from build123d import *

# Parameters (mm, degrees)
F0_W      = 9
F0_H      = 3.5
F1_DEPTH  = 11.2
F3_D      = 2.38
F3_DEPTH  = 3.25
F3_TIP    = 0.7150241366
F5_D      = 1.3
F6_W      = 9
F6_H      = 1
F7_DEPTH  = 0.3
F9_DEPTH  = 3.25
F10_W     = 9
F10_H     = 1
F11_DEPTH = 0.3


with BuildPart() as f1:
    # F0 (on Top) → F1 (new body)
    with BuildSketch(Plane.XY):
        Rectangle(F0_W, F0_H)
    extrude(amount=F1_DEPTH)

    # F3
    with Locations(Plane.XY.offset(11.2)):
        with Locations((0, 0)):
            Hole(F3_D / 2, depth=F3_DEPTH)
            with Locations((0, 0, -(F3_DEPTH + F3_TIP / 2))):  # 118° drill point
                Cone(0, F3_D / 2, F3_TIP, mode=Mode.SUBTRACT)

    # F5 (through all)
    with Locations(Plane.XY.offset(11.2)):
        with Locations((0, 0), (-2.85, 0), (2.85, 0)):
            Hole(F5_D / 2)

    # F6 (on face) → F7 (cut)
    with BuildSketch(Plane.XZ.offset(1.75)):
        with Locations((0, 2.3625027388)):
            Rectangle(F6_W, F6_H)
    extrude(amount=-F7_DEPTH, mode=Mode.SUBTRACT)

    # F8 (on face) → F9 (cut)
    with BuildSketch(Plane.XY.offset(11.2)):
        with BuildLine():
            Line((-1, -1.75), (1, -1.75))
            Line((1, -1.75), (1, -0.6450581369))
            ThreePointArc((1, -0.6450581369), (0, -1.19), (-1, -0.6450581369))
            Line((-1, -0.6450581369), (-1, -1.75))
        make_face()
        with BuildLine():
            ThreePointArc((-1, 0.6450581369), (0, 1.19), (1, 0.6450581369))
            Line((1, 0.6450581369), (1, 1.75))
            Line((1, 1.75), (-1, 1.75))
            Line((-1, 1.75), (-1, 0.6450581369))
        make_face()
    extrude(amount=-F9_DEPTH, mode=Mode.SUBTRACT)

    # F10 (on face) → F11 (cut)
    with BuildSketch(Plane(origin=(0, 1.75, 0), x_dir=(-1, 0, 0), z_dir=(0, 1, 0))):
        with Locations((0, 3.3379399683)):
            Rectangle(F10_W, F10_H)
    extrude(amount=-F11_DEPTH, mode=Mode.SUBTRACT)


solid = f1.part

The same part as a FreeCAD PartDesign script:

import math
import FreeCAD as App
import Part
import Sketcher

V = App.Vector
Q = App.Units.Quantity

doc = App.newDocument("Part")
body = doc.addObject("PartDesign::Body", "Body")

# Sketch on XY plane
sketch1 = doc.addObject("Sketcher::SketchObject", "Sketch")
body.addObject(sketch1)
sketch1.AttachmentSupport = (doc.XY_Plane, [""])
sketch1.MapMode = "FlatFace"
sketch1.addGeometry([
    Part.LineSegment(V(-4.5, 1.8, 0), V(-4.5, -1.8, 0)),
    Part.LineSegment(V(-4.5, -1.8, 0), V(4.5, -1.8, 0)),
    Part.LineSegment(V(4.5, -1.8, 0), V(4.5, 1.8, 0)),
    Part.LineSegment(V(4.5, 1.8, 0), V(-4.5, 1.8, 0)),
], False)
sketch1.addConstraint([
    Sketcher.Constraint("Coincident", 0, 2, 1, 1),
    Sketcher.Constraint("Coincident", 1, 2, 2, 1),
    Sketcher.Constraint("Coincident", 2, 2, 3, 1),
    Sketcher.Constraint("Coincident", 3, 2, 0, 1),
    Sketcher.Constraint("Vertical", 0),
    Sketcher.Constraint("Horizontal", 1),
    Sketcher.Constraint("Vertical", 2),
    Sketcher.Constraint("Horizontal", 3),
    Sketcher.Constraint("Symmetric", 0, 2, 2, 2, -1, 1),
    Sketcher.Constraint("DistanceX", 1, 1, 1, 2, Q("9 mm")),
    Sketcher.Constraint("DistanceY", 0, 2, 0, 1, Q("3.5 mm")),
])
pad1 = doc.addObject("PartDesign::Pad", "Pad")
body.addObject(pad1)
pad1.Profile = sketch1
pad1.Length = 11.2

# Sketch on XY plane
sketch2 = doc.addObject("Sketcher::SketchObject", "Sketch001")
body.addObject(sketch2)
sketch2.AttachmentSupport = (doc.XY_Plane, [""])
sketch2.MapMode = "FlatFace"
sketch2.AttachmentOffset = App.Placement(V(0, 0, 11.2), App.Rotation())
sketch2.addGeometry(Part.Circle(V(0, 0, 0), V(0, 0, 1), 1.2), False)
sketch2.addConstraint([
    Sketcher.Constraint("Coincident", 0, 3, -1, 1),
    Sketcher.Constraint("Diameter", 0, Q("2.38 mm")),
])
doc.recompute()
hole = doc.addObject("PartDesign::Hole", "Hole")
body.addObject(hole)
hole.Profile = sketch2
hole.ThreadType = "None"
hole.Diameter = 2.38
hole.DepthType = "Dimension"
hole.Depth = 3.25
hole.DrillPoint = "Angled"
hole.DrillPointAngle = 118

# Sketch on XY plane
sketch3 = doc.addObject("Sketcher::SketchObject", "Sketch002")
body.addObject(sketch3)
sketch3.AttachmentSupport = (doc.XY_Plane, [""])
sketch3.MapMode = "FlatFace"
sketch3.AttachmentOffset = App.Placement(V(0, 0, 11.2), App.Rotation())
sketch3.addGeometry([
    Part.Circle(V(0, 0, 0), V(0, 0, 1), 0.7),
    Part.Circle(V(-2.9, 0, 0), V(0, 0, 1), 0.7),
    Part.Circle(V(2.9, 0, 0), V(0, 0, 1), 0.7),
], False)
sketch3.addConstraint([
    Sketcher.Constraint("Coincident", 0, 3, -1, 1),
    Sketcher.Constraint("Equal", 0, 1),
    Sketcher.Constraint("Equal", 1, 2),
    Sketcher.Constraint("Symmetric", 1, 3, 2, 3, -1, 1),
    Sketcher.Constraint("PointOnObject", 1, 3, -1),
    Sketcher.Constraint("Diameter", 0, Q("1.3 mm")),
    Sketcher.Constraint("DistanceX", 1, 3, 2, 3, Q("5.7 mm")),
])
doc.recompute()
hole2 = doc.addObject("PartDesign::Hole", "Hole001")
body.addObject(hole2)
hole2.Profile = sketch3
hole2.ThreadType = "None"
hole2.Diameter = 1.3
hole2.DepthType = "ThroughAll"

# Sketch on XZ plane
sketch4 = doc.addObject("Sketcher::SketchObject", "Sketch003")
body.addObject(sketch4)
sketch4.AttachmentSupport = (doc.XZ_Plane, [""])
sketch4.MapMode = "FlatFace"
sketch4.AttachmentOffset = App.Placement(V(0, 0, 1.75), App.Rotation())
sketch4.addGeometry([
    Part.LineSegment(V(-4.5, 2.9, 0), V(-4.5, 1.9, 0)),
    Part.LineSegment(V(-4.5, 1.9, 0), V(4.5, 1.9, 0)),
    Part.LineSegment(V(4.5, 1.9, 0), V(4.5, 2.9, 0)),
    Part.LineSegment(V(4.5, 2.9, 0), V(-4.5, 2.9, 0)),
], False)
sketch4.addConstraint([
    Sketcher.Constraint("Coincident", 0, 2, 1, 1),
    Sketcher.Constraint("Coincident", 1, 2, 2, 1),
    Sketcher.Constraint("Coincident", 2, 2, 3, 1),
    Sketcher.Constraint("Coincident", 3, 2, 0, 1),
    Sketcher.Constraint("Vertical", 0),
    Sketcher.Constraint("Horizontal", 1),
    Sketcher.Constraint("Vertical", 2),
    Sketcher.Constraint("Horizontal", 3),
    Sketcher.Constraint("DistanceX", 1, 1, 1, 2, Q("9 mm")),
    Sketcher.Constraint("DistanceY", 0, 2, 0, 1, Q("1 mm")),
    Sketcher.Constraint("DistanceX", 0, 2, -1, 1, Q("4.5 mm")),
    Sketcher.Constraint("DistanceY", -1, 1, 0, 2, Q("1.862503 mm")),
])
pocket1 = doc.addObject("PartDesign::Pocket", "Pocket")
body.addObject(pocket1)
pocket1.Profile = sketch4
pocket1.Length = 0.3

# Sketch on XY plane
sketch5 = doc.addObject("Sketcher::SketchObject", "Sketch004")
body.addObject(sketch5)
sketch5.AttachmentSupport = (doc.XY_Plane, [""])
sketch5.MapMode = "FlatFace"
sketch5.AttachmentOffset = App.Placement(V(0, 0, 11.2), App.Rotation())
sketch5.addGeometry([
    Part.LineSegment(V(-1, -1.8, 0), V(1, -1.8, 0)),  # 0
    Part.LineSegment(V(1, -1.8, 0), V(1, -0.6, 0)),  # 1
    Part.ArcOfCircle(Part.Circle(V(0, 0, 0), V(0, 0, 1), 1.2), math.radians(-147), math.radians(-33)),  # 2
    Part.LineSegment(V(-1, -0.6, 0), V(-1, -1.8, 0)),  # 3
    Part.ArcOfCircle(Part.Circle(V(0, 0, 0), V(0, 0, 1), 1.2), math.radians(33), math.radians(147)),  # 4
    Part.LineSegment(V(1, 0.6, 0), V(1, 1.8, 0)),  # 5
    Part.LineSegment(V(1, 1.8, 0), V(-1, 1.8, 0)),  # 6
    Part.LineSegment(V(-1, 1.8, 0), V(-1, 0.6, 0)),  # 7
], False)
sketch5.addConstraint([
    Sketcher.Constraint("Coincident", 0, 2, 1, 1),
    Sketcher.Constraint("Coincident", 1, 2, 2, 2),
    Sketcher.Constraint("Coincident", 2, 1, 3, 1),
    Sketcher.Constraint("Coincident", 3, 2, 0, 1),
    Sketcher.Constraint("Coincident", 4, 1, 5, 1),
    Sketcher.Constraint("Coincident", 5, 2, 6, 1),
    Sketcher.Constraint("Coincident", 6, 2, 7, 1),
    Sketcher.Constraint("Coincident", 7, 2, 4, 2),
    Sketcher.Constraint("Horizontal", 0),
    Sketcher.Constraint("Vertical", 1),
    Sketcher.Constraint("Vertical", 3),
    Sketcher.Constraint("Vertical", 5),
    Sketcher.Constraint("Horizontal", 6),
    Sketcher.Constraint("Vertical", 7),
    Sketcher.Constraint("Coincident", 2, 3, -1, 1),
    Sketcher.Constraint("Coincident", 4, 3, -1, 1),
    Sketcher.Constraint("Equal", 2, 4),
    Sketcher.Constraint("Symmetric", 3, 2, 5, 2, -1, 1),
    Sketcher.Constraint("Horizontal", 1, 2, 2, 1),
    Sketcher.Constraint("Horizontal", 4, 1, 7, 2),
    Sketcher.Constraint("DistanceX", 0, 1, 0, 2, Q("2 mm")),
    Sketcher.Constraint("Radius", 2, Q("1.19 mm")),
    Sketcher.Constraint("DistanceY", 0, 2, -1, 1, Q("1.75 mm")),
])
pocket2 = doc.addObject("PartDesign::Pocket", "Pocket001")
body.addObject(pocket2)
pocket2.Profile = sketch5
pocket2.Length = 3.25

# Sketch on XZ plane
sketch6 = doc.addObject("Sketcher::SketchObject", "Sketch005")
body.addObject(sketch6)
sketch6.AttachmentSupport = (doc.XZ_Plane, [""])
sketch6.MapMode = "FlatFace"
sketch6.AttachmentOffset = App.Placement(V(0, 0, -1.75), App.Rotation())
sketch6.addGeometry([
    Part.LineSegment(V(4.5, 3.8, 0), V(4.5, 2.8, 0)),
    Part.LineSegment(V(4.5, 2.8, 0), V(-4.5, 2.8, 0)),
    Part.LineSegment(V(-4.5, 2.8, 0), V(-4.5, 3.8, 0)),
    Part.LineSegment(V(-4.5, 3.8, 0), V(4.5, 3.8, 0)),
], False)
sketch6.addConstraint([
    Sketcher.Constraint("Coincident", 0, 2, 1, 1),
    Sketcher.Constraint("Coincident", 1, 2, 2, 1),
    Sketcher.Constraint("Coincident", 2, 2, 3, 1),
    Sketcher.Constraint("Coincident", 3, 2, 0, 1),
    Sketcher.Constraint("Vertical", 0),
    Sketcher.Constraint("Horizontal", 1),
    Sketcher.Constraint("Vertical", 2),
    Sketcher.Constraint("Horizontal", 3),
    Sketcher.Constraint("DistanceX", 1, 2, 1, 1, Q("9 mm")),
    Sketcher.Constraint("DistanceY", 0, 2, 0, 1, Q("1 mm")),
    Sketcher.Constraint("DistanceX", -1, 1, 0, 2, Q("4.5 mm")),
    Sketcher.Constraint("DistanceY", -1, 1, 0, 2, Q("2.83794 mm")),
])
pocket3 = doc.addObject("PartDesign::Pocket", "Pocket002")
body.addObject(pocket3)
pocket3.Profile = sketch6
pocket3.Length = 0.3
pocket3.Reversed = True

doc.recompute()
